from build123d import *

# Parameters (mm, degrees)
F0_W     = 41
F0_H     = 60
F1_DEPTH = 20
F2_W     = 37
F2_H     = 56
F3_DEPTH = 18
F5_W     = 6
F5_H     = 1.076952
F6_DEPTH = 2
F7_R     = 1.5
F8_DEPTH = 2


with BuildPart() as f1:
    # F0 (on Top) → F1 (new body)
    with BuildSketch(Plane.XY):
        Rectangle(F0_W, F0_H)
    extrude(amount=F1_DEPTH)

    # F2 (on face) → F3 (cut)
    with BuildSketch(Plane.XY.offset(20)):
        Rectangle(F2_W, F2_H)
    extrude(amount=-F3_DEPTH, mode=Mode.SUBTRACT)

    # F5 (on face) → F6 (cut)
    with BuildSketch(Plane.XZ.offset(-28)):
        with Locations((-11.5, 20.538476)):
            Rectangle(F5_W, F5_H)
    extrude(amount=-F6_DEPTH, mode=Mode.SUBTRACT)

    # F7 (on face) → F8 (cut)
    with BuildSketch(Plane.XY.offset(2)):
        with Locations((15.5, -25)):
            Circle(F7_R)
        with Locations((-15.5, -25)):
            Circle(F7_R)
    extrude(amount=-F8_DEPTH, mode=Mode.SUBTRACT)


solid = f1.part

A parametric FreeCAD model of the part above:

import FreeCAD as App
import Part
import Sketcher

V = App.Vector


def add_polygon(sketch, points):
    """Adds a closed chain of lines whose ends are joined by coincident constraints."""
    first, n = sketch.GeometryCount, len(points)
    for a, b in zip(points, points[1:] + points[:1]):
        sketch.addGeometry(Part.LineSegment(App.Vector(*a, 0), App.Vector(*b, 0)), False)
    for i in range(n):
        sketch.addConstraint(Sketcher.Constraint("Coincident", first + i, 2, first + (i + 1) % n, 1))

doc = App.newDocument("Part")
params = doc.addObject("Spreadsheet::Sheet", "Params")
for row, (alias, value) in enumerate([
    ("sketch1_width", "41 mm"),
    ("sketch1_height", "60 mm"),
    ("pad1_length", "20 mm"),
    ("sketch2_width", "37 mm"),
    ("sketch2_height", "56 mm"),
    ("pocket1_length", "18 mm"),
    ("sketch3_width", "6 mm"),
    ("pocket2_length", "2 mm"),
    ("sketch4_diameter", "3 mm"),
    ("pocket3_length", "2 mm"),
], start=1):
    params.set(f"A{row}", alias)
    params.set(f"B{row}", "=" + value)
    params.setAlias(f"B{row}", alias)

body = doc.addObject("PartDesign::Body", "Body")

# Sketch on XY plane
sketch1 = body.newObject("Sketcher::SketchObject", "Sketch")
sketch1.AttachmentSupport = (doc.getObject("XY_Plane"), [""])
sketch1.MapMode = "FlatFace"
add_polygon(sketch1, [(-20, 30), (-20, -30), (20, -30), (20, 30)])  # lines 0-3
sketch1.addConstraint([
    Sketcher.Constraint("Vertical", 0),
    Sketcher.Constraint("Horizontal", 1),
    Sketcher.Constraint("Vertical", 2),
    Sketcher.Constraint("Horizontal", 3),
    Sketcher.Constraint("Symmetric", 0, 2, 2, 2, -1, 1),
    Sketcher.Constraint("DistanceX", 1, 1, 1, 2, 41.0),
    Sketcher.Constraint("DistanceY", 0, 2, 0, 1, 60.0),
])
sketch1.setExpression("Constraints[9]", "Params.sketch1_width")
sketch1.setExpression("Constraints[10]", "Params.sketch1_height")
pad1 = body.newObject("PartDesign::Pad", "Pad")
pad1.Profile = sketch1
pad1.setExpression("Length", "Params.pad1_length")

# Sketch on XY plane
sketch2 = body.newObject("Sketcher::SketchObject", "Sketch001")
sketch2.AttachmentSupport = (doc.getObject("XY_Plane"), [""])
sketch2.MapMode = "FlatFace"
sketch2.AttachmentOffset = App.Placement(V(0, 0, 20), App.Rotation())
add_polygon(sketch2, [(-18, 28), (-18, -28), (18, -28), (18, 28)])  # lines 0-3
sketch2.addConstraint([
    Sketcher.Constraint("Vertical", 0),
    Sketcher.Constraint("Horizontal", 1),
    Sketcher.Constraint("Vertical", 2),
    Sketcher.Constraint("Horizontal", 3),
    Sketcher.Constraint("Symmetric", 0, 2, 2, 2, -1, 1),
    Sketcher.Constraint("DistanceX", 1, 1, 1, 2, 37.0),
    Sketcher.Constraint("DistanceY", 0, 2, 0, 1, 56.0),
])
sketch2.setExpression("Constraints[9]", "Params.sketch2_width")
sketch2.setExpression("Constraints[10]", "Params.sketch2_height")
pocket1 = body.newObject("PartDesign::Pocket", "Pocket")
pocket1.Profile = sketch2
pocket1.setExpression("Length", "Params.pocket1_length")

# Sketch on XZ plane
sketch3 = body.newObject("Sketcher::SketchObject", "Sketch002")
sketch3.AttachmentSupport = (doc.getObject("XZ_Plane"), [""])
sketch3.MapMode = "FlatFace"
sketch3.AttachmentOffset = App.Placement(V(0, 0, -28), App.Rotation())
add_polygon(sketch3, [(-14.5, 21.1), (-14.5, 20), (-8.5, 20), (-8.5, 21.1)])  # lines 0-3
sketch3.addConstraint([
    Sketcher.Constraint("Vertical", 0),
    Sketcher.Constraint("Horizontal", 1),
    Sketcher.Constraint("Vertical", 2),
    Sketcher.Constraint("Horizontal", 3),
    Sketcher.Constraint("DistanceX", 1, 1, 1, 2, 6.0),
    Sketcher.Constraint("DistanceY", -1, 1, 0, 2, 20.0),
    Sketcher.Constraint("DistanceX", 0, 2, -1, 1, 14.5),
    Sketcher.Constraint("DistanceY", 0, 2, 0, 1, 1.076952),
])
sketch3.setExpression("Constraints[8]", "Params.sketch3_width")
pocket2 = body.newObject("PartDesign::Pocket", "Pocket001")
pocket2.Profile = sketch3
pocket2.setExpression("Length", "Params.pocket2_length")

# Sketch on XY plane
sketch4 = body.newObject("Sketcher::SketchObject", "Sketch003")
sketch4.AttachmentSupport = (doc.getObject("XY_Plane"), [""])
sketch4.MapMode = "FlatFace"
sketch4.AttachmentOffset = App.Placement(V(0, 0, 2), App.Rotation())
sketch4.addGeometry([
    Part.Circle(V(15.5, -25, 0), V(0, 0, 1), 1.5),
    Part.Circle(V(-15.5, -25, 0), V(0, 0, 1), 1.5),
], False)
sketch4.addConstraint([
    Sketcher.Constraint("Equal", 0, 1),
    Sketcher.Constraint("Symmetric", 0, 3, 1, 3, -2),
    Sketcher.Constraint("Diameter", 0, 3.0),
    Sketcher.Constraint("DistanceY", 0, 3, -1, 1, 25.0),
    Sketcher.Constraint("DistanceX", 1, 3, 0, 3, 31.0),
])
sketch4.setExpression("Constraints[2]", "Params.sketch4_diameter")
pocket3 = body.newObject("PartDesign::Pocket", "Pocket002")
pocket3.Profile = sketch4
pocket3.setExpression("Length", "Params.pocket3_length")

doc.recompute()
